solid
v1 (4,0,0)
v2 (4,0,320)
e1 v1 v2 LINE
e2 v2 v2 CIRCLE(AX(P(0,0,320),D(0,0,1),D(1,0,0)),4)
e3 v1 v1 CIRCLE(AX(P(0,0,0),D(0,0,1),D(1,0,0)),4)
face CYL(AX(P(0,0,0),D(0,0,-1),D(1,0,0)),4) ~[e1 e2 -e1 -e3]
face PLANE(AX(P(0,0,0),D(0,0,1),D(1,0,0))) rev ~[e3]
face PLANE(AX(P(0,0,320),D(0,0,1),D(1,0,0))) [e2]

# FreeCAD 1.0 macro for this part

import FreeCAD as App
import Part
import Sketcher

doc = App.newDocument("Part")
body = doc.addObject("PartDesign::Body", "Body")

# Sketch on XY plane
sketch1 = body.newObject("Sketcher::SketchObject", "Sketch")
sketch1.AttachmentSupport = (doc.getObject("XY_Plane"), [""])
sketch1.MapMode = "FlatFace"
sketch1.addGeometry(Part.Circle(App.Vector(0, 0, 0), App.Vector(0, 0, 1), 4), False)
sketch1.addConstraint([
    Sketcher.Constraint("Coincident", 0, 3, -1, 1),
    Sketcher.Constraint("Diameter", 0, 8.0),
])
pad1 = body.newObject("PartDesign::Pad", "Pad")
pad1.Profile = sketch1
pad1.Length = 320

doc.recompute()
